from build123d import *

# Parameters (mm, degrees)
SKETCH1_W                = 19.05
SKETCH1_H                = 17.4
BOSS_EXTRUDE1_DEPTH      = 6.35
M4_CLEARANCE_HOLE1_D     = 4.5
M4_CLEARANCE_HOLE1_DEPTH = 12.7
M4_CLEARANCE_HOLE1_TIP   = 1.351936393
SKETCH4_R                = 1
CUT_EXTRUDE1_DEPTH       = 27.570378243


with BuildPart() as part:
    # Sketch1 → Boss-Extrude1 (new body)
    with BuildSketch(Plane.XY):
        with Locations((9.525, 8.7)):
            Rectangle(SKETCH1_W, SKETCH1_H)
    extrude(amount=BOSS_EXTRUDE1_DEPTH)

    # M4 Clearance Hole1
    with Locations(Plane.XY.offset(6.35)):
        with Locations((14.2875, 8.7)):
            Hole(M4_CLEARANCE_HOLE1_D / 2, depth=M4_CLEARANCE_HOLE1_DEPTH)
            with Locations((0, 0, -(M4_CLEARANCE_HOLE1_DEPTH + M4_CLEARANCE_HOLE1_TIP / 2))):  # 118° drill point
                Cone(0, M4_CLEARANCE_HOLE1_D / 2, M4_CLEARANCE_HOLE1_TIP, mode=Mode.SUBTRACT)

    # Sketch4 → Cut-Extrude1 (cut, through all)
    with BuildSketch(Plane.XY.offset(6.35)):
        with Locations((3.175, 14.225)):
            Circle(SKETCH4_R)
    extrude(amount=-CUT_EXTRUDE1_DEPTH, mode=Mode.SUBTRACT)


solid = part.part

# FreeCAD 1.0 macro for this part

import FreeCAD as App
import Part
import Sketcher
from FreeCAD import Vector

doc = App.newDocument("Part")
body = doc.addObject("PartDesign::Body", "Body")

sketch1 = body.newObject("Sketcher::SketchObject", "Sketch")
sketch1.AttachmentSupport = (doc.getObject("XY_Plane"), [""])
sketch1.MapMode = "FlatFace"
sketch1.addGeometry([
    Part.LineSegment(Vector(0, 17.4, 0), Vector(0, 0, 0)),
    Part.LineSegment(Vector(0, 0, 0), Vector(19.05, 0, 0)),
    Part.LineSegment(Vector(19.05, 0, 0), Vector(19.05, 17.4, 0)),
    Part.LineSegment(Vector(19.05, 17.4, 0), Vector(0, 17.4, 0)),
], False)
sketch1.addConstraint([
    Sketcher.Constraint("Coincident", 0, 2, 1, 1),
    Sketcher.Constraint("Coincident", 1, 2, 2, 1),
    Sketcher.Constraint("Coincident", 2, 2, 3, 1),
    Sketcher.Constraint("Coincident", 3, 2, 0, 1),
    Sketcher.Constraint("Vertical", 0),
    Sketcher.Constraint("Horizontal", 1),
    Sketcher.Constraint("Vertical", 2),
    Sketcher.Constraint("Horizontal", 3),
    Sketcher.Constraint("Coincident", 0, 2, -1, 1),
    Sketcher.Constraint("DistanceY", 0, 2, 0, 1, 17.4),
    Sketcher.Constraint("DistanceX", 1, 1, 1, 2, 19.05),
])
pad1 = body.newObject("PartDesign::Pad", "Pad")
pad1.Profile = sketch1
pad1.Length = 6.35

sketch2 = body.newObject("Sketcher::SketchObject", "Sketch001")
sketch2.AttachmentSupport = (doc.getObject("XY_Plane"), [""])
sketch2.MapMode = "FlatFace"
sketch2.AttachmentOffset = App.Placement(Vector(0, 0, 6.35), App.Rotation())
sketch2.addGeometry(Part.Circle(Vector(14.2875, 8.7, 0), Vector(0, 0, 1), 2.25), False)
sketch2.addConstraint([
    Sketcher.Constraint("Diameter", 0, 4.5),
    Sketcher.Constraint("DistanceY", -1, 1, 0, 3, 8.7),
    Sketcher.Constraint("DistanceX", -1, 1, 0, 3, 14.2875),
])
doc.recompute()
hole = body.newObject("PartDesign::Hole", "Hole")
hole.Profile = sketch2
hole.ThreadType = "None"
hole.Diameter = 4.5
hole.DepthType = "Dimension"
hole.Depth = 12.7
hole.DrillPoint = "Angled"
hole.DrillPointAngle = 118

sketch3 = body.newObject("Sketcher::SketchObject", "Sketch002")
sketch3.AttachmentSupport = (doc.getObject("XY_Plane"), [""])
sketch3.MapMode = "FlatFace"
sketch3.AttachmentOffset = App.Placement(Vector(0, 0, 6.35), App.Rotation())
sketch3.addGeometry(Part.Circle(Vector(3.175, 14.225, 0), Vector(0, 0, 1), 1), False)
sketch3.addConstraint([
    Sketcher.Constraint("Diameter", 0, 2.0),
    Sketcher.Constraint("DistanceX", -1, 1, 0, 3, 3.175),
    Sketcher.Constraint("DistanceY", -1, 1, 0, 3, 14.225),
])
pocket1 = body.newObject("PartDesign::Pocket", "Pocket")
pocket1.Profile = sketch3
pocket1.Type = "ThroughAll"

doc.recompute()
